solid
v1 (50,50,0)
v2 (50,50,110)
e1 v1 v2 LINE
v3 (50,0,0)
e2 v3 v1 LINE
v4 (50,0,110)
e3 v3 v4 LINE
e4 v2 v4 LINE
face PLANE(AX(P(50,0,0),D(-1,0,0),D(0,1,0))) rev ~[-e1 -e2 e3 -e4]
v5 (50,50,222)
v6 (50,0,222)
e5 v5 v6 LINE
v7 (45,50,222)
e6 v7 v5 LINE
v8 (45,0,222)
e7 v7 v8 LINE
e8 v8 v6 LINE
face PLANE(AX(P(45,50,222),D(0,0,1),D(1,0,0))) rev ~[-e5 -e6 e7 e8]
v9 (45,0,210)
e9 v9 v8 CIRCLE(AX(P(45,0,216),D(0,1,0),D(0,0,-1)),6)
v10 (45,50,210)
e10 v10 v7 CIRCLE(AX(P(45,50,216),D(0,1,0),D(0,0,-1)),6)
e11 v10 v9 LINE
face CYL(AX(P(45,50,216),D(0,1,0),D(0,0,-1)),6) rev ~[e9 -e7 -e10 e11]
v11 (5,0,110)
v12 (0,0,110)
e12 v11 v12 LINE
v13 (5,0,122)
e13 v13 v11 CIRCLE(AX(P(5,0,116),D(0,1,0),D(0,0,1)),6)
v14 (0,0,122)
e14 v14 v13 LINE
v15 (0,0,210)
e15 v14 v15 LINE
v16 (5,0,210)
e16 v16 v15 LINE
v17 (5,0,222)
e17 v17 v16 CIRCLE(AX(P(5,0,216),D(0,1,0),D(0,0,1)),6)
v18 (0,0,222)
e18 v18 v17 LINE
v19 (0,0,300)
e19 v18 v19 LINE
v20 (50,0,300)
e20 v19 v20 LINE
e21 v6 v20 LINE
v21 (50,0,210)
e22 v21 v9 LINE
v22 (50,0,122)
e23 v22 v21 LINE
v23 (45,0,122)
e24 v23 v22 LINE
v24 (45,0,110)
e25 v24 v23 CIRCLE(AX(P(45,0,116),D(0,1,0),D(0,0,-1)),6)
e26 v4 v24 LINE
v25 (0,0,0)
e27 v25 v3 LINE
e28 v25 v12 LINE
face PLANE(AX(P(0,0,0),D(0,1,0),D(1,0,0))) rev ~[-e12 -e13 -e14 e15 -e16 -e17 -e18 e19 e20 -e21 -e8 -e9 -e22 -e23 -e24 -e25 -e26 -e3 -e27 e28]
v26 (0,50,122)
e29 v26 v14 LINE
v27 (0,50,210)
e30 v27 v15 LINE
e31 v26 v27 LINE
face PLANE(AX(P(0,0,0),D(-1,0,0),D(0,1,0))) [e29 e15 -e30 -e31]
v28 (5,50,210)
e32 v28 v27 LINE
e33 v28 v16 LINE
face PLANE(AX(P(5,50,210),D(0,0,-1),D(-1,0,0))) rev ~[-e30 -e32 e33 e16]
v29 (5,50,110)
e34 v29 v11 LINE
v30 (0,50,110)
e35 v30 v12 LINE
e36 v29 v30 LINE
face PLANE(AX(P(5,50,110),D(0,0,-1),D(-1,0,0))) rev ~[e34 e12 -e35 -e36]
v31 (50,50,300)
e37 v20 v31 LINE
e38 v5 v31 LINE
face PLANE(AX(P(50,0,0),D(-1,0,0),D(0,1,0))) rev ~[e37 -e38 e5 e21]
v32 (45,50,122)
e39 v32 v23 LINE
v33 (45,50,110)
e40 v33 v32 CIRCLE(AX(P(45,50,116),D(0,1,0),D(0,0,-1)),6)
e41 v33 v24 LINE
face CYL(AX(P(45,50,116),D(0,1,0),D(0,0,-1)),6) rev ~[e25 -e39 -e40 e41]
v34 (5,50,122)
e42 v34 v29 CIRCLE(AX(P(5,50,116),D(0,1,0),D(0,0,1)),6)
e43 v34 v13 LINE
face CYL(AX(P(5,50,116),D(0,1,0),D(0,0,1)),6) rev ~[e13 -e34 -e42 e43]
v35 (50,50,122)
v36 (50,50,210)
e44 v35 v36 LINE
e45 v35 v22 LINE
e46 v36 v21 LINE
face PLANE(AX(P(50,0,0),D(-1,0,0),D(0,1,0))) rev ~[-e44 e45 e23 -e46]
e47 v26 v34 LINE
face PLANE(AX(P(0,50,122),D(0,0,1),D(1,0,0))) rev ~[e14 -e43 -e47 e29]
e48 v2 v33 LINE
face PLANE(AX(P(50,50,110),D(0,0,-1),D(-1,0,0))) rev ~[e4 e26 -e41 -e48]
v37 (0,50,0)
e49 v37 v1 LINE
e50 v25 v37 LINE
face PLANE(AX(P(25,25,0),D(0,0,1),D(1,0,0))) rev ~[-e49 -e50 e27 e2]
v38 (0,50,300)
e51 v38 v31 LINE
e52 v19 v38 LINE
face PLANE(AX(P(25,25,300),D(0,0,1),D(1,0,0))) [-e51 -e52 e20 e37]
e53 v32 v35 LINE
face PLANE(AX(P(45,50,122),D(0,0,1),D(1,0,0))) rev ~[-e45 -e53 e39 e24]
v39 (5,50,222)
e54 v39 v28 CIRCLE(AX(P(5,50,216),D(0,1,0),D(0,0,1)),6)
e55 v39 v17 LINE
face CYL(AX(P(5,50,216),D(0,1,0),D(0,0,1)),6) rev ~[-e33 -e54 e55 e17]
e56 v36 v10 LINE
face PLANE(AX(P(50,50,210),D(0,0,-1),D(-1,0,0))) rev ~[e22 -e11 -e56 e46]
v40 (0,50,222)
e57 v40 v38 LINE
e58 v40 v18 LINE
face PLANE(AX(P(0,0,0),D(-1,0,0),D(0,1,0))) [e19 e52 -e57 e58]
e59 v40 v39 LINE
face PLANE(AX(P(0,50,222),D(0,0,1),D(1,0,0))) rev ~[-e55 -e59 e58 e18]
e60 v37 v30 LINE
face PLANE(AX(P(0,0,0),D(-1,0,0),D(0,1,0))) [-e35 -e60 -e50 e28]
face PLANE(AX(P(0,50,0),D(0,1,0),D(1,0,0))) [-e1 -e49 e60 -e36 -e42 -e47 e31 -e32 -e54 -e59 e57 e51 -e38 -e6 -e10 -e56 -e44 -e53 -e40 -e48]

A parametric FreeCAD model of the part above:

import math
import FreeCAD as App
import Part
import Sketcher

V = App.Vector
Q = App.Units.Quantity


def add_polygon(sketch, points):
    """Adds a closed chain of lines whose ends are joined by coincident constraints."""
    first, n = sketch.GeometryCount, len(points)
    for a, b in zip(points, points[1:] + points[:1]):
        sketch.addGeometry(Part.LineSegment(App.Vector(*a, 0), App.Vector(*b, 0)), False)
    for i in range(n):
        sketch.addConstraint(Sketcher.Constraint("Coincident", first + i, 2, first + (i + 1) % n, 1))

doc = App.newDocument("Part")
body = doc.addObject("PartDesign::Body", "Body")

# Sketch on XY plane
sketch1 = body.newObject("Sketcher::SketchObject", "Sketch")
sketch1.AttachmentSupport = (doc.getObject("XY_Plane"), [""])
sketch1.MapMode = "FlatFace"
add_polygon(sketch1, [(0, 50), (0, 0), (50, 0), (50, 50)])  # lines 0-3
sketch1.addConstraint([
    Sketcher.Constraint("Vertical", 0),
    Sketcher.Constraint("Horizontal", 1),
    Sketcher.Constraint("Vertical", 2),
    Sketcher.Constraint("Horizontal", 3),
    Sketcher.Constraint("Coincident", 0, 2, -1, 1),
    Sketcher.Constraint("Equal", 3, 0),
    Sketcher.Constraint("DistanceX", 1, 1, 1, 2, Q("50 mm")),
])
pad1 = body.newObject("PartDesign::Pad", "Pad")
pad1.Profile = sketch1
pad1.Length = 300

# Sketch on XZ plane
sketch2 = body.newObject("Sketcher::SketchObject", "Sketch001")
sketch2.AttachmentSupport = (doc.getObject("XZ_Plane"), [""])
sketch2.MapMode = "FlatFace"
sketch2.AttachmentOffset = App.Placement(V(0, 0, -50), App.Rotation())
sketch2.addGeometry([
    Part.LineSegment(V(50, 210, 0), V(45, 210, 0)),  # 0
    Part.ArcOfCircle(Part.Circle(V(45, 216, 0), V(0, 0, 1), 6), math.radians(90), math.radians(270)),  # 1
    Part.LineSegment(V(45, 222, 0), V(50, 222, 0)),  # 2
    Part.LineSegment(V(50, 222, 0), V(50, 210, 0)),  # 3
    Part.LineSegment(V(0, 222, 0), V(5, 222, 0)),  # 4
    Part.ArcOfCircle(Part.Circle(V(5, 216, 0), V(0, 0, 1), 6), math.radians(-90), math.radians(90)),  # 5
    Part.LineSegment(V(5, 210, 0), V(0, 210, 0)),  # 6
    Part.LineSegment(V(0, 210, 0), V(0, 222, 0)),  # 7
    Part.LineSegment(V(50, 110, 0), V(45, 110, 0)),  # 8
    Part.ArcOfCircle(Part.Circle(V(45, 116, 0), V(0, 0, 1), 6), math.radians(90), math.radians(270)),  # 9
    Part.LineSegment(V(45, 122, 0), V(50, 122, 0)),  # 10
    Part.LineSegment(V(50, 122, 0), V(50, 110, 0)),  # 11
    Part.LineSegment(V(0, 122, 0), V(5, 122, 0)),  # 12
    Part.ArcOfCircle(Part.Circle(V(5, 116, 0), V(0, 0, 1), 6), math.radians(-90), math.radians(90)),  # 13
    Part.LineSegment(V(5, 110, 0), V(0, 110, 0)),  # 14
    Part.LineSegment(V(0, 110, 0), V(0, 122, 0)),  # 15
], False)
sketch2.addConstraint([
    Sketcher.Constraint("Tangent", 0, 2, 1, 2),
    Sketcher.Constraint("Tangent", 1, 1, 2, 1),
    Sketcher.Constraint("Coincident", 2, 2, 3, 1),
    Sketcher.Constraint("Coincident", 3, 2, 0, 1),
    Sketcher.Constraint("Tangent", 4, 2, 5, 2),
    Sketcher.Constraint("Tangent", 5, 1, 6, 1),
    Sketcher.Constraint("Coincident", 6, 2, 7, 1),
    Sketcher.Constraint("Coincident", 7, 2, 4, 1),
    Sketcher.Constraint("Tangent", 8, 2, 9, 2),
    Sketcher.Constraint("Tangent", 9, 1, 10, 1),
    Sketcher.Constraint("Coincident", 10, 2, 11, 1),
    Sketcher.Constraint("Coincident", 11, 2, 8, 1),
    Sketcher.Constraint("Tangent", 12, 2, 13, 2),
    Sketcher.Constraint("Tangent", 13, 1, 14, 1),
    Sketcher.Constraint("Coincident", 14, 2, 15, 1),
    Sketcher.Constraint("Coincident", 15, 2, 12, 1),
    Sketcher.Constraint("Horizontal", 0),
    Sketcher.Constraint("Horizontal", 2),
    Sketcher.Constraint("Vertical", 3),
    Sketcher.Constraint("Horizontal", 4),
    Sketcher.Constraint("Horizontal", 6),
    Sketcher.Constraint("Vertical", 7),
    Sketcher.Constraint("Horizontal", 8),
    Sketcher.Constraint("Horizontal", 10),
    Sketcher.Constraint("Vertical", 11),
    Sketcher.Constraint("Horizontal", 12),
    Sketcher.Constraint("Horizontal", 14),
    Sketcher.Constraint("Vertical", 15),
    Sketcher.Constraint("Equal", 1, 5),
    Sketcher.Constraint("Equal", 5, 9),
    Sketcher.Constraint("Equal", 9, 13),
    Sketcher.Constraint("PointOnObject", 6, 2, -2),
    Sketcher.Constraint("PointOnObject", 14, 2, -2),
    Sketcher.Constraint("Horizontal", 1, 3, 5, 3),
    Sketcher.Constraint("Horizontal", 9, 3, 13, 3),
    Sketcher.Constraint("Vertical", 1, 3, 9, 3),
    Sketcher.Constraint("Vertical", 5, 3, 13, 3),
    Sketcher.Constraint("Vertical", 3, 2, 10, 2),
    Sketcher.Constraint("Equal", 2, 4),
    Sketcher.Constraint("Radius", 1, Q("6 mm")),
    Sketcher.Constraint("DistanceX", 0, 2, 0, 1, Q("5 mm")),
    Sketcher.Constraint("DistanceX", -1, 1, 1, 3, Q("45 mm")),
    Sketcher.Constraint("DistanceY", -1, 1, 1, 3, Q("216 mm")),
    Sketcher.Constraint("DistanceY", -1, 1, 9, 3, Q("116 mm")),
])
pocket1 = body.newObject("PartDesign::Pocket", "Pocket")
pocket1.Profile = sketch2
pocket1.Type = "ThroughAll"
pocket1.Reversed = True

doc.recompute()
